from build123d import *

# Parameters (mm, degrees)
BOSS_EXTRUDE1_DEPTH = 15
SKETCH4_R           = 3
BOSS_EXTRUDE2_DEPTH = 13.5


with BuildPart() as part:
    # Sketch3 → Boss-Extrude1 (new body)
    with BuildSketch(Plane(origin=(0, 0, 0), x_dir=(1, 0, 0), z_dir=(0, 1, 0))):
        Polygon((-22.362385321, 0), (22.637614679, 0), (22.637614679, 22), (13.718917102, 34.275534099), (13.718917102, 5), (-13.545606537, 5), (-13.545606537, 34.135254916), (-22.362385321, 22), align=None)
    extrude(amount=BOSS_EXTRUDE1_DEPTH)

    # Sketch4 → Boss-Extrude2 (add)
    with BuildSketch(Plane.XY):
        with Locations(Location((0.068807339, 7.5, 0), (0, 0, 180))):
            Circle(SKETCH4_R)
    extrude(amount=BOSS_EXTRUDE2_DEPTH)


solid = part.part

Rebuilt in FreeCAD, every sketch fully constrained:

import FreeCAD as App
import Part
import Sketcher
Q = App.Units.Quantity


def add_polygon(sketch, points):
    """Adds a closed chain of lines whose ends are joined by coincident constraints."""
    first, n = sketch.GeometryCount, len(points)
    for a, b in zip(points, points[1:] + points[:1]):
        sketch.addGeometry(Part.LineSegment(App.Vector(*a, 0), App.Vector(*b, 0)), False)
    for i in range(n):
        sketch.addConstraint(Sketcher.Constraint("Coincident", first + i, 2, first + (i + 1) % n, 1))

doc = App.newDocument("Part")
body = doc.addObject("PartDesign::Body", "Body")

sketch1 = doc.addObject("Sketcher::SketchObject", "Sketch")
body.addObject(sketch1)
sketch1.AttachmentSupport = (doc.XZ_Plane, [""])
sketch1.MapMode = "FlatFace"
add_polygon(sketch1, [(-22, 0), (23, 0), (23, -22), (14, -34), (14, -5), (-14, -5), (-14, -34), (-22, -22)])
sketch1.addConstraint([
    Sketcher.Constraint("Horizontal", 0),
    Sketcher.Constraint("Vertical", 1),
    Sketcher.Constraint("Vertical", 3),
    Sketcher.Constraint("Horizontal", 4),
    Sketcher.Constraint("Vertical", 5),
    Sketcher.Constraint("Vertical", 7),
    Sketcher.Constraint("PointOnObject", 0, 2, -1),
    Sketcher.Constraint("Horizontal", 1, 2, 6, 2),
    Sketcher.Constraint("DistanceX", 0, 1, 0, 2, 45.0),
    Sketcher.Constraint("DistanceY", 1, 2, 1, 1, 22.0),
    Sketcher.Constraint("Angle", 2, Q("-126 deg")),
    Sketcher.Constraint("Angle", 6, Q("126 deg")),
    Sketcher.Constraint("Distance", 6, 15.0),
    Sketcher.Constraint("DistanceY", 3, 2, -1, 1, 5.0),
    Sketcher.Constraint("DistanceX", 4, 2, 4, 1, 27.264524),
    Sketcher.Constraint("DistanceX", -1, 1, 0, 2, 22.637615),
])
pad1 = doc.addObject("PartDesign::Pad", "Pad")
body.addObject(pad1)
pad1.Profile = sketch1
pad1.Length = 15
pad1.Reversed = True

sketch2 = doc.addObject("Sketcher::SketchObject", "Sketch001")
body.addObject(sketch2)
sketch2.AttachmentSupport = (doc.XY_Plane, [""])
sketch2.MapMode = "FlatFace"
sketch2.addGeometry(Part.Circle(App.Vector(0.1, 7.5, 0), App.Vector(0, 0, 1), 3), False)
sketch2.addConstraint([
    Sketcher.Constraint("Diameter", 0, 6.0),
    Sketcher.Constraint("DistanceY", -1, 1, 0, 3, 7.5),
    Sketcher.Constraint("DistanceX", -1, 1, 0, 3, 0.068807),
])
pad2 = doc.addObject("PartDesign::Pad", "Pad001")
body.addObject(pad2)
pad2.Profile = sketch2
pad2.Length = 13.5

doc.recompute()
